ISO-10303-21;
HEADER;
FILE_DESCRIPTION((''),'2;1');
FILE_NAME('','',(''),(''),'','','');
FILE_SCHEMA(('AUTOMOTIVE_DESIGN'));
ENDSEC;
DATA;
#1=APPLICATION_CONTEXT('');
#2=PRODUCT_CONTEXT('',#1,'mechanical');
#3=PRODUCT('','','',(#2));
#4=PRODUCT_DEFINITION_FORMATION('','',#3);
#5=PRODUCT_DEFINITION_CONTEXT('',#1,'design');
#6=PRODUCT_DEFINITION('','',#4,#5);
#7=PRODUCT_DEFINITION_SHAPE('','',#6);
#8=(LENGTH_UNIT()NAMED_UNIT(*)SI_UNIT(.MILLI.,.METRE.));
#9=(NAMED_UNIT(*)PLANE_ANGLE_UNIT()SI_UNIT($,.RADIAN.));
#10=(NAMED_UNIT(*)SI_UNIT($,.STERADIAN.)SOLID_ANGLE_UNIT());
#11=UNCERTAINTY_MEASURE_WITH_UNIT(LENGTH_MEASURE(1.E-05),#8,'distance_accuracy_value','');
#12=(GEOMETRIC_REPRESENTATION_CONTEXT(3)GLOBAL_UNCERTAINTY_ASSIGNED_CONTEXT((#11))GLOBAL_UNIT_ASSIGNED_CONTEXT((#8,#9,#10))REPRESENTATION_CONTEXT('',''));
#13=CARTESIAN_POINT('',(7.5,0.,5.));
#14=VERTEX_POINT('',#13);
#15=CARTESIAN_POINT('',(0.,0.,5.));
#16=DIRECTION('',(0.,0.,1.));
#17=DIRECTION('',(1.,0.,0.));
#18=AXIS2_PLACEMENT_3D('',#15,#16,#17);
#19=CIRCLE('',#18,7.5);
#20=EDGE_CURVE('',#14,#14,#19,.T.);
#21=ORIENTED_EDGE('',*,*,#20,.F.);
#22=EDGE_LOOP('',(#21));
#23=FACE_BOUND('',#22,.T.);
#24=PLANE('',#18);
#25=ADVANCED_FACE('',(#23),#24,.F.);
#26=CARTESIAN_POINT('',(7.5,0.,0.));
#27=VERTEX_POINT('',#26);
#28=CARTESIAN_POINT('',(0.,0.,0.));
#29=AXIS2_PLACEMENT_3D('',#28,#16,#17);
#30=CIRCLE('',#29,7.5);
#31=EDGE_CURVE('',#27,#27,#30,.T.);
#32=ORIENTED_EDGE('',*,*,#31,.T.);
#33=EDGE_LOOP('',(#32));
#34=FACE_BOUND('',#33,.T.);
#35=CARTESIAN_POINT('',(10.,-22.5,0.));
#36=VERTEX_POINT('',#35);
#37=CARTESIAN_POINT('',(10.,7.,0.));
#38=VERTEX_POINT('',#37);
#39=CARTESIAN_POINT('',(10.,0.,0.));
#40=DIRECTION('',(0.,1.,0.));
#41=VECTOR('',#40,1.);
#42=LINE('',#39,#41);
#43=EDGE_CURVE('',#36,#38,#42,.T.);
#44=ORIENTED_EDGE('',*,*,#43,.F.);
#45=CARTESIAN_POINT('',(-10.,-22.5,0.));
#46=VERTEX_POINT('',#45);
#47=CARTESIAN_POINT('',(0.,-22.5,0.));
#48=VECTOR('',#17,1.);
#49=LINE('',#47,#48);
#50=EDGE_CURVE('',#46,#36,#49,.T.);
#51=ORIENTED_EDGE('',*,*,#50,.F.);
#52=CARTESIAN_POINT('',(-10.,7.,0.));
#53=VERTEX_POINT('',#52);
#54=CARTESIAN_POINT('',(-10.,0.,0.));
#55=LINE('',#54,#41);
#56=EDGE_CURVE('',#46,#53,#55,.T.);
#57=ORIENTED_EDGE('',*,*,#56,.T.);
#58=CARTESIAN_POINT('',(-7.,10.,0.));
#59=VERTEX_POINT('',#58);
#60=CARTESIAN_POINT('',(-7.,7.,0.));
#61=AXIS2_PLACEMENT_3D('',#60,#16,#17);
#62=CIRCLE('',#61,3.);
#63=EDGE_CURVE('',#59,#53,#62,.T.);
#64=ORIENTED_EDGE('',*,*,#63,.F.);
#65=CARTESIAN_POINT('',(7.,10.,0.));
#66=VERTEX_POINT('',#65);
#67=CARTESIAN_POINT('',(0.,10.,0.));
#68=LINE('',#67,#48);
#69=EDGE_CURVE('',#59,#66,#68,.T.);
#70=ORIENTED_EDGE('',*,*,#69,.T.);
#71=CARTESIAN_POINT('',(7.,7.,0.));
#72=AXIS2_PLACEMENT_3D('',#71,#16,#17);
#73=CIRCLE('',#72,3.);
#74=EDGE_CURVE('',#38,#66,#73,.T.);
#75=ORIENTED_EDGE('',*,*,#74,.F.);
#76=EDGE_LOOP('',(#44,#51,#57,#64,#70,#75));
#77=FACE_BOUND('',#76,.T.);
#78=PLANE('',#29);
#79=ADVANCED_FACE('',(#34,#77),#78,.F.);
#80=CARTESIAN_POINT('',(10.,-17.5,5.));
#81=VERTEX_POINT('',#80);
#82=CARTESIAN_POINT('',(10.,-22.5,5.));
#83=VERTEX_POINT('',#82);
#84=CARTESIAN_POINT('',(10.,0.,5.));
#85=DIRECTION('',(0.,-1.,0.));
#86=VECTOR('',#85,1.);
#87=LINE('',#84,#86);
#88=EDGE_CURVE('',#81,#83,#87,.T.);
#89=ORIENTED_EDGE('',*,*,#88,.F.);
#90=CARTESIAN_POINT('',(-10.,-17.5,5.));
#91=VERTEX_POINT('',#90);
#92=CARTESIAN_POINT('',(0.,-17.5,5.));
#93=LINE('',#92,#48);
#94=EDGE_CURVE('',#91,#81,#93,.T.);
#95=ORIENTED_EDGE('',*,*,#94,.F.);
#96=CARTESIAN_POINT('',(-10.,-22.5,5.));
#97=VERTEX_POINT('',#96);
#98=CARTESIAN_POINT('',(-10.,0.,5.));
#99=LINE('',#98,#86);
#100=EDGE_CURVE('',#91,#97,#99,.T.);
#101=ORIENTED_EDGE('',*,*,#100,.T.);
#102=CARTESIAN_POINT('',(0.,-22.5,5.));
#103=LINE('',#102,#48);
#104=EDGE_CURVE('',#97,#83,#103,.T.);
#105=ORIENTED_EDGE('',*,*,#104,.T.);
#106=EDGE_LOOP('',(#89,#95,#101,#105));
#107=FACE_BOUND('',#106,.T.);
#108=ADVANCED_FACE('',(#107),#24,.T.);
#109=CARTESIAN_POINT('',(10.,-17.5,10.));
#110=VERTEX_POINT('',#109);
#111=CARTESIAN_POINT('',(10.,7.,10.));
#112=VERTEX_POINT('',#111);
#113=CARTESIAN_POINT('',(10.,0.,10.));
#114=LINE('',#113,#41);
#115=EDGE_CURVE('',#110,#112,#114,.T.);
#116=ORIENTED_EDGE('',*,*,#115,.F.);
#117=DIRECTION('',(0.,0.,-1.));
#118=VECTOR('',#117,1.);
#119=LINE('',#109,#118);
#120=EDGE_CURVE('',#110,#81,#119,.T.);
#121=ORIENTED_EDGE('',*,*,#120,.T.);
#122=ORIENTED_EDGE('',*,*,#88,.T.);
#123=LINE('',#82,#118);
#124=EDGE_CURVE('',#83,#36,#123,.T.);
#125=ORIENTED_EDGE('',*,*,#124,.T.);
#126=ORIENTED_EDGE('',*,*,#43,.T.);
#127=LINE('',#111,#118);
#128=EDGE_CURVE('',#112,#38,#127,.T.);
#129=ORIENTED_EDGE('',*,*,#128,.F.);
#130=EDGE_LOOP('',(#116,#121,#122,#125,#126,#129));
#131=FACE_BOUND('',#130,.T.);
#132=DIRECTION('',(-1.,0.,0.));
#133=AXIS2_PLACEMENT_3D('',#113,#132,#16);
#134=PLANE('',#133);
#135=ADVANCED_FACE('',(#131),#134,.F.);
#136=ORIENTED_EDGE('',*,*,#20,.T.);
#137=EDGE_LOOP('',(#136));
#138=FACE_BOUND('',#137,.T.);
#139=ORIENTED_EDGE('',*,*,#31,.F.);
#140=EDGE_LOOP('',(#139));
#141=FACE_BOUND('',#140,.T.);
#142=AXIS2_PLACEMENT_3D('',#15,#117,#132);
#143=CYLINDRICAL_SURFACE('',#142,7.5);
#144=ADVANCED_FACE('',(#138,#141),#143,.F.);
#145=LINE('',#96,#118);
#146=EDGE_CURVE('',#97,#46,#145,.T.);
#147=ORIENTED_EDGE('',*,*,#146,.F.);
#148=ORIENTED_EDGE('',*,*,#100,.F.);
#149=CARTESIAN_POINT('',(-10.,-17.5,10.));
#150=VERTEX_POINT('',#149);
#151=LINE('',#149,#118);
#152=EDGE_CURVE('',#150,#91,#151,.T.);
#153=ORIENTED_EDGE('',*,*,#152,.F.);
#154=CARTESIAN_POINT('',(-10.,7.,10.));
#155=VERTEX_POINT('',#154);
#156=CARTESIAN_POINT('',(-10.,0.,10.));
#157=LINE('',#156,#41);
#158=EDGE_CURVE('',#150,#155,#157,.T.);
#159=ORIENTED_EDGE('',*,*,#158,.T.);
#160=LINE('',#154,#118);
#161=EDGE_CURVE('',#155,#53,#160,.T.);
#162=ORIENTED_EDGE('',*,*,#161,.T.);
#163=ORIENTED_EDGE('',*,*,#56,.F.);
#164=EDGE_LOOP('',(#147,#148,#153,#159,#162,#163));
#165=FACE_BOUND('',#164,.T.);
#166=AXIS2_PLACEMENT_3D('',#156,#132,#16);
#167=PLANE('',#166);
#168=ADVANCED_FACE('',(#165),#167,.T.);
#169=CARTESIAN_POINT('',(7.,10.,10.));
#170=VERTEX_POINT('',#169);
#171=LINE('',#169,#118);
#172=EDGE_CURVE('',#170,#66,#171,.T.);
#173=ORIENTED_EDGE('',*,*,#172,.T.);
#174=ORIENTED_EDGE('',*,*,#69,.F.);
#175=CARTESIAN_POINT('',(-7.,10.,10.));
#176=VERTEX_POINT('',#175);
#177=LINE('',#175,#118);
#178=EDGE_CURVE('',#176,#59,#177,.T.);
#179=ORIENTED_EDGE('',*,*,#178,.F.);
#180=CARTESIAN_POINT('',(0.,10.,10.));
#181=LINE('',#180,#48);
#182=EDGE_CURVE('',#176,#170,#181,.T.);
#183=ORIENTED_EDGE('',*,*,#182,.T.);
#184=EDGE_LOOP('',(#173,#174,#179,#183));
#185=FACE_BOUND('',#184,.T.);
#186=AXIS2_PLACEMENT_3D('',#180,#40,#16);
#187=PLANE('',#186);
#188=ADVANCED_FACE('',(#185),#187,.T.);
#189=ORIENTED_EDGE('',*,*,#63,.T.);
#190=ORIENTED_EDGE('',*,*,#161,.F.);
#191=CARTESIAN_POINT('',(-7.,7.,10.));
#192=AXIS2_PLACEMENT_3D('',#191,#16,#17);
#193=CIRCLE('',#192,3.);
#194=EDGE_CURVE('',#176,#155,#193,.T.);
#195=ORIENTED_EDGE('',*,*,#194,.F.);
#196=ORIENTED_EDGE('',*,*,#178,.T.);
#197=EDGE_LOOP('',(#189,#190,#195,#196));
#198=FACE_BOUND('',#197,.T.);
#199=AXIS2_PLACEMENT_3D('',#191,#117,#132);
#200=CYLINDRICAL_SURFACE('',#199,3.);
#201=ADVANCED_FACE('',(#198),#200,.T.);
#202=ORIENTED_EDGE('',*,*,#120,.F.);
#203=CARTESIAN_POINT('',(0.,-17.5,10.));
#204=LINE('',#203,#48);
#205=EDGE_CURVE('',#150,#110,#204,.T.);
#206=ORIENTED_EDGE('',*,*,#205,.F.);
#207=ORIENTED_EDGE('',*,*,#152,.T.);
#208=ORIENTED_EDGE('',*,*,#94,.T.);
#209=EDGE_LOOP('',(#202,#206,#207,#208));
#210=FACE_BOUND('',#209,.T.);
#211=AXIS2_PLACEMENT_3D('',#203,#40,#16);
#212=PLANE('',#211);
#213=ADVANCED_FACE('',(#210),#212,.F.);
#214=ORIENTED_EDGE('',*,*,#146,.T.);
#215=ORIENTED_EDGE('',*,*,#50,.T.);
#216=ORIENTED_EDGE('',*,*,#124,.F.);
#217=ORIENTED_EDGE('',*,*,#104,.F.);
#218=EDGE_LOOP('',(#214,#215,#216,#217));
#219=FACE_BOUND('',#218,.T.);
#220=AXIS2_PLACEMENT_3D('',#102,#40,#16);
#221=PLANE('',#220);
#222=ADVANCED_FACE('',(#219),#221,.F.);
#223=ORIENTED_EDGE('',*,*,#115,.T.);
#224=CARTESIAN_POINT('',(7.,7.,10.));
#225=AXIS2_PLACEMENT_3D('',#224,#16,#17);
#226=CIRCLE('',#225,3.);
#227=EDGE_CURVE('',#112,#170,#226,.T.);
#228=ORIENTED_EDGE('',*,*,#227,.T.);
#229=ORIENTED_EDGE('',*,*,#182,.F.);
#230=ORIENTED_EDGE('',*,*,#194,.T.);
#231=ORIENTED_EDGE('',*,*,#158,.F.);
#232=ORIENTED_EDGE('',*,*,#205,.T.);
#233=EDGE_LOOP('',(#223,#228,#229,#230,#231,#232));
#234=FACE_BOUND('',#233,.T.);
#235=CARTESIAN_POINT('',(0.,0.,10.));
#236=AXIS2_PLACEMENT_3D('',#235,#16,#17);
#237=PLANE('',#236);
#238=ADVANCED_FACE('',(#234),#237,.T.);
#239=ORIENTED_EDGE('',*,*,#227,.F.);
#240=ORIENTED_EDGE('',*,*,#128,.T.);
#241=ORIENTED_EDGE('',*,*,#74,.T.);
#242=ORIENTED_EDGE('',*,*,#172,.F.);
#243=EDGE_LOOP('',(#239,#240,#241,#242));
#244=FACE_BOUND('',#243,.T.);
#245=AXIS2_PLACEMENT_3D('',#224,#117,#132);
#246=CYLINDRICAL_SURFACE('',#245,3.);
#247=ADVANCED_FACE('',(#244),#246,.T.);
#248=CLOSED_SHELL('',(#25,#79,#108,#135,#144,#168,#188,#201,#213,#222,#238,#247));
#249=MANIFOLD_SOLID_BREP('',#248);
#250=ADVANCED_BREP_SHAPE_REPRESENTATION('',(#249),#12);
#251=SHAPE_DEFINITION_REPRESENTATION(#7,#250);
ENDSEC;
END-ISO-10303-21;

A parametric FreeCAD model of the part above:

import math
import FreeCAD as App
import Part
import Sketcher
Q = App.Units.Quantity

doc = App.newDocument("Part")
params = doc.addObject("Spreadsheet::Sheet", "Params")
for row, (alias, value) in enumerate([
    ("sketch1_radius", "3 mm"),
    ("sketch1_width", "14 mm"),
    ("sketch1_height", "24.5 mm"),
    ("pad1_length", "10 mm"),
    ("sketch2_width", "20 mm"),
    ("sketch2_height", "5 mm"),
    ("pad2_length", "5 mm"),
    ("sketch3_diameter", "15 mm"),
    ("pocket1_length", "5 mm"),
], start=1):
    params.set(f"A{row}", alias)
    params.set(f"B{row}", "=" + value)
    params.setAlias(f"B{row}", alias)

body = doc.addObject("PartDesign::Body", "Body")

# Sketch on XY plane
sketch1 = body.newObject("Sketcher::SketchObject", "Sketch")
sketch1.AttachmentSupport = (doc.getObject("XY_Plane"), [""])
sketch1.MapMode = "FlatFace"
sketch1.addGeometry(Part.LineSegment(App.Vector(7, 10, 0), App.Vector(-7, 10, 0)), False)
sketch1.addGeometry(Part.ArcOfCircle(Part.Circle(App.Vector(-7, 7, 0), App.Vector(0, 0, 1), 3), math.radians(90), math.radians(180)), False)
sketch1.addGeometry(Part.LineSegment(App.Vector(-10, 7, 0), App.Vector(-10, -17.5, 0)), False)
sketch1.addGeometry(Part.LineSegment(App.Vector(-10, -17.5, 0), App.Vector(10, -17.5, 0)), False)
sketch1.addGeometry(Part.LineSegment(App.Vector(10, -17.5, 0), App.Vector(10, 7, 0)), False)
sketch1.addGeometry(Part.ArcOfCircle(Part.Circle(App.Vector(7, 7, 0), App.Vector(0, 0, 1), 3), math.radians(0), math.radians(90)), False)
sketch1.addConstraint(Sketcher.Constraint("Tangent", 0, 2, 1, 1))
sketch1.addConstraint(Sketcher.Constraint("Tangent", 1, 2, 2, 1))
sketch1.addConstraint(Sketcher.Constraint("Coincident", 2, 2, 3, 1))
sketch1.addConstraint(Sketcher.Constraint("Coincident", 3, 2, 4, 1))
sketch1.addConstraint(Sketcher.Constraint("Tangent", 4, 2, 5, 1))
sketch1.addConstraint(Sketcher.Constraint("Tangent", 5, 2, 0, 1))
sketch1.addConstraint(Sketcher.Constraint("Horizontal", 0))
sketch1.addConstraint(Sketcher.Constraint("Vertical", 2))
sketch1.addConstraint(Sketcher.Constraint("Horizontal", 3))
sketch1.addConstraint(Sketcher.Constraint("Vertical", 4))
sketch1.addConstraint(Sketcher.Constraint("Equal", 1, 5))
sketch1.addConstraint(Sketcher.Constraint("Radius", 1, Q("3 mm")))
sketch1.addConstraint(Sketcher.Constraint("DistanceX", 0, 2, 0, 1, Q("14 mm")))
sketch1.addConstraint(Sketcher.Constraint("DistanceY", 2, 2, 2, 1, Q("24.5 mm")))
sketch1.addConstraint(Sketcher.Constraint("DistanceX", 1, 3, -1, 1, Q("7 mm")))
sketch1.addConstraint(Sketcher.Constraint("DistanceY", -1, 1, 1, 3, Q("7 mm")))
sketch1.setExpression("Constraints[11]", "Params.sketch1_radius")
sketch1.setExpression("Constraints[12]", "Params.sketch1_width")
sketch1.setExpression("Constraints[13]", "Params.sketch1_height")
pad1 = body.newObject("PartDesign::Pad", "Pad")
pad1.Profile = sketch1
pad1.setExpression("Length", "Params.pad1_length")

# Sketch on XY plane
sketch2 = body.newObject("Sketcher::SketchObject", "Sketch001")
sketch2.AttachmentSupport = (doc.getObject("XY_Plane"), [""])
sketch2.MapMode = "FlatFace"
sketch2.addGeometry(Part.LineSegment(App.Vector(-10, -17.5, 0), App.Vector(-10, -22.5, 0)), False)
sketch2.addGeometry(Part.LineSegment(App.Vector(-10, -22.5, 0), App.Vector(10, -22.5, 0)), False)
sketch2.addGeometry(Part.LineSegment(App.Vector(10, -22.5, 0), App.Vector(10, -17.5, 0)), False)
sketch2.addGeometry(Part.LineSegment(App.Vector(10, -17.5, 0), App.Vector(-10, -17.5, 0)), False)
sketch2.addConstraint(Sketcher.Constraint("Coincident", 0, 2, 1, 1))
sketch2.addConstraint(Sketcher.Constraint("Coincident", 1, 2, 2, 1))
sketch2.addConstraint(Sketcher.Constraint("Coincident", 2, 2, 3, 1))
sketch2.addConstraint(Sketcher.Constraint("Coincident", 3, 2, 0, 1))
sketch2.addConstraint(Sketcher.Constraint("Vertical", 0))
sketch2.addConstraint(Sketcher.Constraint("Horizontal", 1))
sketch2.addConstraint(Sketcher.Constraint("Vertical", 2))
sketch2.addConstraint(Sketcher.Constraint("Horizontal", 3))
sketch2.addConstraint(Sketcher.Constraint("DistanceX", 1, 1, 1, 2, Q("20 mm")))
sketch2.addConstraint(Sketcher.Constraint("DistanceY", 0, 2, 0, 1, Q("5 mm")))
sketch2.addConstraint(Sketcher.Constraint("DistanceX", 0, 2, -1, 1, Q("10 mm")))
sketch2.addConstraint(Sketcher.Constraint("DistanceY", 0, 2, -1, 1, Q("22.5 mm")))
sketch2.setExpression("Constraints[8]", "Params.sketch2_width")
sketch2.setExpression("Constraints[9]", "Params.sketch2_height")
pad2 = body.newObject("PartDesign::Pad", "Pad001")
pad2.Profile = sketch2
pad2.setExpression("Length", "Params.pad2_length")

# Sketch on XY plane
sketch3 = body.newObject("Sketcher::SketchObject", "Sketch002")
sketch3.AttachmentSupport = (doc.getObject("XY_Plane"), [""])
sketch3.MapMode = "FlatFace"
sketch3.addGeometry(Part.Circle(App.Vector(0, 0, 0), App.Vector(0, 0, 1), 7.5), False)
sketch3.addConstraint(Sketcher.Constraint("Coincident", 0, 3, -1, 1))
sketch3.addConstraint(Sketcher.Constraint("Diameter", 0, Q("15 mm")))
sketch3.setExpression("Constraints[1]", "Params.sketch3_diameter")
pocket1 = body.newObject("PartDesign::Pocket", "Pocket")
pocket1.Profile = sketch3
pocket1.setExpression("Length", "Params.pocket1_length")
pocket1.Reversed = True

doc.recompute()
